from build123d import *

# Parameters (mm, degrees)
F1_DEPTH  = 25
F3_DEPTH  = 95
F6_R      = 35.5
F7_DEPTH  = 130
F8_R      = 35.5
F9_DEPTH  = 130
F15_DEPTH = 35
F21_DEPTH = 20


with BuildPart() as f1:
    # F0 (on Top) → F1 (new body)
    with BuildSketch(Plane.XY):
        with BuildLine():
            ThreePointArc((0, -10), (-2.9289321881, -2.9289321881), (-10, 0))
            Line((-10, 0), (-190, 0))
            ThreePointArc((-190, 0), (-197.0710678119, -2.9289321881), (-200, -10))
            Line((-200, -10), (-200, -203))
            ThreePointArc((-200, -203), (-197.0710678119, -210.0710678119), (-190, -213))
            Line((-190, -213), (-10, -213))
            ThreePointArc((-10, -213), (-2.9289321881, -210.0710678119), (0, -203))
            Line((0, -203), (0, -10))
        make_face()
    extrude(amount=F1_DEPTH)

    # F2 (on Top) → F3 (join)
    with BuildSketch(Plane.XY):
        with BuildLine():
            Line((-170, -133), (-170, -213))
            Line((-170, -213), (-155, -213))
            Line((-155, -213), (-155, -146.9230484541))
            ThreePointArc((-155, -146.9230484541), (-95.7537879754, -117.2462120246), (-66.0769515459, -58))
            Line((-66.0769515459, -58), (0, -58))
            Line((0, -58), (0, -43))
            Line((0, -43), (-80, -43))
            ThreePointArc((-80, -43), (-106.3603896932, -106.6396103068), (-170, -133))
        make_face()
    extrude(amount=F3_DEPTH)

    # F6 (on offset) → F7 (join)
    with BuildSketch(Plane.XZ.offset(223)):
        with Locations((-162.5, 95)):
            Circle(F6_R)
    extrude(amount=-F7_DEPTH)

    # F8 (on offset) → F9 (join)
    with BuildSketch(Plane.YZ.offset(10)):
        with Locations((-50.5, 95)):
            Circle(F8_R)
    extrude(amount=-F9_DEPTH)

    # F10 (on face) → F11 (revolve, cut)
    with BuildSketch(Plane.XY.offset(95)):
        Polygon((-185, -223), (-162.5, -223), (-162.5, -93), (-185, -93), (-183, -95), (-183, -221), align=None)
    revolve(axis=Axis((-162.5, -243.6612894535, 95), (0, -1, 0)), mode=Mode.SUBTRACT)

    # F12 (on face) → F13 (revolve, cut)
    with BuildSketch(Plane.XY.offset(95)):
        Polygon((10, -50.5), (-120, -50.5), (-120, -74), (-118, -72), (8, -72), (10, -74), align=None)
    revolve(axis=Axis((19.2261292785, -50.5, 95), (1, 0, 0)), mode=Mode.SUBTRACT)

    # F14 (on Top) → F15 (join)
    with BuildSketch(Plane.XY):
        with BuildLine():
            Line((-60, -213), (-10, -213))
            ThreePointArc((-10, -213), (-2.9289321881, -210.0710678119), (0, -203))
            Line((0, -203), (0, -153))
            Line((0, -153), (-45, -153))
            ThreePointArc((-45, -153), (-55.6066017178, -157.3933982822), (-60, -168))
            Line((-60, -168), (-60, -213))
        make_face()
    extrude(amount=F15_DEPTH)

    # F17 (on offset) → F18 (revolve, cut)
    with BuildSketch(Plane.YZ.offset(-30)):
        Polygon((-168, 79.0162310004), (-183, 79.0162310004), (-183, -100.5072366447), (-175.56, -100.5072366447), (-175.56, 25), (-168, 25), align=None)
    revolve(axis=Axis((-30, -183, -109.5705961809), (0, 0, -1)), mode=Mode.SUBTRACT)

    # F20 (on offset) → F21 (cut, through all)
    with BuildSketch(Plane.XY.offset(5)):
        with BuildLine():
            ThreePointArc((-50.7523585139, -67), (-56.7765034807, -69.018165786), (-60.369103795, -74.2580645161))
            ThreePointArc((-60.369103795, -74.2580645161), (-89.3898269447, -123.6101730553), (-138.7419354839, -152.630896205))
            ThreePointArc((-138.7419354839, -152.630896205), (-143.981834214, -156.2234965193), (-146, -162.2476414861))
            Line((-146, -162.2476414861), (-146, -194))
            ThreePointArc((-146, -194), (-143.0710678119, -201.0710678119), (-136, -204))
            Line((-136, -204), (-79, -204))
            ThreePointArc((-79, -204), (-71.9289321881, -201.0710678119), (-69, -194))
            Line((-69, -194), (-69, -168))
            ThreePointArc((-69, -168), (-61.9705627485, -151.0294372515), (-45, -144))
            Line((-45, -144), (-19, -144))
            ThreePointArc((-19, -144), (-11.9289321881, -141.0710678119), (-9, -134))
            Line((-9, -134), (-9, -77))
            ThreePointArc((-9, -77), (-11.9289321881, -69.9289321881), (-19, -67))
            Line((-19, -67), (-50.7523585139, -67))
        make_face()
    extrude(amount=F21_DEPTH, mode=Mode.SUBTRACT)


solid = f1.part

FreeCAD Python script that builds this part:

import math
import FreeCAD as App
import Part
import Sketcher
from FreeCAD import Vector
Q = App.Units.Quantity

doc = App.newDocument("Part")
params = doc.addObject("Spreadsheet::Sheet", "Params")
for row, (alias, value) in enumerate([
    ("sketch1_radius", "10 mm"),
    ("sketch1_width", "180 mm"),
    ("sketch1_height", "193 mm"),
    ("pad1_length", "25 mm"),
    ("sketch2_radius", "105 mm"),
    ("sketch2_radius2", "90 mm"),
    ("sketch2_width", "15 mm"),
    ("sketch2_width2", "80 mm"),
    ("pad2_length", "95 mm"),
    ("sketch3_diameter", "71 mm"),
    ("pad3_length", "130 mm"),
    ("sketch4_diameter", "71 mm"),
    ("pad4_length", "130 mm"),
    ("sketch5_height", "130 mm"),
    ("sketch5_height2", "126 mm"),
    ("sketch5_width", "22.5 mm"),
    ("groove_angle", "360 deg"),
    ("sketch6_width", "130 mm"),
    ("sketch6_width2", "126 mm"),
    ("sketch6_height", "23.5 mm"),
    ("groove2_angle", "360 deg"),
    ("sketch7_radius", "10 mm"),
    ("sketch7_radius2", "15 mm"),
    ("sketch7_width", "50 mm"),
    ("pad5_length", "35 mm"),
    ("sketch8_width", "15 mm"),
    ("sketch8_width2", "7.44 mm"),
    ("groove3_angle", "360 deg"),
    ("sketch9_radius", "10 mm"),
    ("sketch9_radius2", "114 mm"),
    ("sketch9_radius3", "24 mm"),
    ("sketch9_width", "57 mm"),
    ("sketch9_width2", "26 mm"),
    ("pocket1_length", "20 mm"),
], start=1):
    params.set(f"A{row}", alias)
    params.set(f"B{row}", "=" + value)
    params.setAlias(f"B{row}", alias)

body = doc.addObject("PartDesign::Body", "Body")

# Sketch on XY plane
sketch1 = body.newObject("Sketcher::SketchObject", "Sketch")
sketch1.AttachmentSupport = (doc.getObject("XY_Plane"), [""])
sketch1.MapMode = "FlatFace"
sketch1.addGeometry([
    Part.ArcOfCircle(Part.Circle(Vector(-10, -10, 0), Vector(0, 0, 1), 10), math.radians(0), math.radians(90)),  # 0
    Part.LineSegment(Vector(-10, 0, 0), Vector(-190, 0, 0)),  # 1
    Part.ArcOfCircle(Part.Circle(Vector(-190, -10, 0), Vector(0, 0, 1), 10), math.radians(90), math.radians(180)),  # 2
    Part.LineSegment(Vector(-200, -10, 0), Vector(-200, -203, 0)),  # 3
    Part.ArcOfCircle(Part.Circle(Vector(-190, -203, 0), Vector(0, 0, 1), 10), math.radians(180), math.radians(270)),  # 4
    Part.LineSegment(Vector(-190, -213, 0), Vector(-10, -213, 0)),  # 5
    Part.ArcOfCircle(Part.Circle(Vector(-10, -203, 0), Vector(0, 0, 1), 10), math.radians(-90), math.radians(0)),  # 6
    Part.LineSegment(Vector(0, -203, 0), Vector(0, -10, 0)),  # 7
], False)
sketch1.addConstraint([
    Sketcher.Constraint("Tangent", 0, 2, 1, 1),
    Sketcher.Constraint("Tangent", 1, 2, 2, 1),
    Sketcher.Constraint("Tangent", 2, 2, 3, 1),
    Sketcher.Constraint("Tangent", 3, 2, 4, 1),
    Sketcher.Constraint("Tangent", 4, 2, 5, 1),
    Sketcher.Constraint("Tangent", 5, 2, 6, 1),
    Sketcher.Constraint("Tangent", 6, 2, 7, 1),
    Sketcher.Constraint("Tangent", 7, 2, 0, 1),
    Sketcher.Constraint("Horizontal", 1),
    Sketcher.Constraint("Vertical", 3),
    Sketcher.Constraint("Horizontal", 5),
    Sketcher.Constraint("Vertical", 7),
    Sketcher.Constraint("Equal", 0, 2),
    Sketcher.Constraint("Equal", 2, 4),
    Sketcher.Constraint("Equal", 4, 6),
    Sketcher.Constraint("PointOnObject", 0, 2, -1),
    Sketcher.Constraint("PointOnObject", 6, 2, -2),
    Sketcher.Constraint("Radius", 0, Q("10 mm")),
    Sketcher.Constraint("DistanceX", 1, 2, 1, 1, Q("180 mm")),
    Sketcher.Constraint("DistanceY", 3, 2, 3, 1, Q("193 mm")),
])
sketch1.setExpression("Constraints[17]", "Params.sketch1_radius")
sketch1.setExpression("Constraints[18]", "Params.sketch1_width")
sketch1.setExpression("Constraints[19]", "Params.sketch1_height")
pad1 = body.newObject("PartDesign::Pad", "Pad")
pad1.Profile = sketch1
pad1.setExpression("Length", "Params.pad1_length")

# Sketch on XY plane
sketch2 = body.newObject("Sketcher::SketchObject", "Sketch001")
sketch2.AttachmentSupport = (doc.getObject("XY_Plane"), [""])
sketch2.MapMode = "FlatFace"
sketch2.addGeometry([
    Part.LineSegment(Vector(-170, -133, 0), Vector(-170, -213, 0)),  # 0
    Part.LineSegment(Vector(-170, -213, 0), Vector(-155, -213, 0)),  # 1
    Part.LineSegment(Vector(-155, -213, 0), Vector(-155, -147, 0)),  # 2
    Part.ArcOfCircle(Part.Circle(Vector(-170, -43, 0), Vector(0, 0, 1), 105), math.radians(-82), math.radians(-8)),  # 3
    Part.LineSegment(Vector(-66, -58, 0), Vector(0, -58, 0)),  # 4
    Part.LineSegment(Vector(0, -58, 0), Vector(0, -43, 0)),  # 5
    Part.LineSegment(Vector(0, -43, 0), Vector(-80, -43, 0)),  # 6
    Part.ArcOfCircle(Part.Circle(Vector(-170, -43, 0), Vector(0, 0, 1), 90), math.radians(-90), math.radians(0)),  # 7
], False)
sketch2.addConstraint([
    Sketcher.Constraint("Coincident", 0, 2, 1, 1),
    Sketcher.Constraint("Coincident", 1, 2, 2, 1),
    Sketcher.Constraint("Coincident", 2, 2, 3, 1),
    Sketcher.Constraint("Coincident", 3, 2, 4, 1),
    Sketcher.Constraint("Coincident", 4, 2, 5, 1),
    Sketcher.Constraint("Coincident", 5, 2, 6, 1),
    Sketcher.Constraint("Coincident", 6, 2, 7, 2),
    Sketcher.Constraint("Coincident", 7, 1, 0, 1),
    Sketcher.Constraint("Vertical", 0),
    Sketcher.Constraint("Horizontal", 1),
    Sketcher.Constraint("Vertical", 2),
    Sketcher.Constraint("Horizontal", 4),
    Sketcher.Constraint("Vertical", 5),
    Sketcher.Constraint("Horizontal", 6),
    Sketcher.Constraint("Coincident", 7, 3, 3, 3),
    Sketcher.Constraint("PointOnObject", 4, 2, -2),
    Sketcher.Constraint("Horizontal", 7, 3, 5, 2),
    Sketcher.Constraint("Vertical", 7, 3, 0, 2),
    Sketcher.Constraint("Equal", 6, 0),
    Sketcher.Constraint("Equal", 4, 2),
    Sketcher.Constraint("Radius", 3, Q("105 mm")),
    Sketcher.Constraint("Radius", 7, Q("90 mm")),
    Sketcher.Constraint("DistanceX", 1, 1, 1, 2, Q("15 mm")),
    Sketcher.Constraint("DistanceX", 6, 2, 6, 1, Q("80 mm")),
    Sketcher.Constraint("DistanceY", 3, 3, -1, 1, Q("43 mm")),
])
sketch2.setExpression("Constraints[20]", "Params.sketch2_radius")
sketch2.setExpression("Constraints[21]", "Params.sketch2_radius2")
sketch2.setExpression("Constraints[22]", "Params.sketch2_width")
sketch2.setExpression("Constraints[23]", "Params.sketch2_width2")
pad2 = body.newObject("PartDesign::Pad", "Pad001")
pad2.Profile = sketch2
pad2.setExpression("Length", "Params.pad2_length")

# Sketch on XZ plane
sketch3 = body.newObject("Sketcher::SketchObject", "Sketch002")
sketch3.AttachmentSupport = (doc.getObject("XZ_Plane"), [""])
sketch3.MapMode = "FlatFace"
sketch3.AttachmentOffset = App.Placement(Vector(0, 0, 223), App.Rotation())
sketch3.addGeometry(Part.Circle(Vector(-162, 95, 0), Vector(0, 0, 1), 36), False)
sketch3.addConstraint([
    Sketcher.Constraint("Diameter", 0, Q("71 mm")),
    Sketcher.Constraint("DistanceY", -1, 1, 0, 3, Q("95 mm")),
    Sketcher.Constraint("DistanceX", 0, 3, -1, 1, Q("162.5 mm")),
])
sketch3.setExpression("Constraints[0]", "Params.sketch3_diameter")
pad3 = body.newObject("PartDesign::Pad", "Pad002")
pad3.Profile = sketch3
pad3.setExpression("Length", "Params.pad3_length")
pad3.Reversed = True

# Sketch on YZ plane
sketch4 = body.newObject("Sketcher::SketchObject", "Sketch003")
sketch4.AttachmentSupport = (doc.getObject("YZ_Plane"), [""])
sketch4.MapMode = "FlatFace"
sketch4.AttachmentOffset = App.Placement(Vector(0, 0, 10), App.Rotation())
sketch4.addGeometry(Part.Circle(Vector(-50, 95, 0), Vector(0, 0, 1), 36), False)
sketch4.addConstraint([
    Sketcher.Constraint("Diameter", 0, Q("71 mm")),
    Sketcher.Constraint("DistanceY", -1, 1, 0, 3, Q("95 mm")),
    Sketcher.Constraint("DistanceX", 0, 3, -1, 1, Q("50.5 mm")),
])
sketch4.setExpression("Constraints[0]", "Params.sketch4_diameter")
pad4 = body.newObject("PartDesign::Pad", "Pad003")
pad4.Profile = sketch4
pad4.setExpression("Length", "Params.pad4_length")
pad4.Reversed = True

# Sketch on XY plane
sketch5 = body.newObject("Sketcher::SketchObject", "Sketch004")
sketch5.AttachmentSupport = (doc.getObject("XY_Plane"), [""])
sketch5.MapMode = "FlatFace"
sketch5.AttachmentOffset = App.Placement(Vector(0, 0, 95), App.Rotation())
sketch5.addGeometry([
    Part.LineSegment(Vector(-185, -223, 0), Vector(-162.5, -223, 0)),  # 0
    Part.LineSegment(Vector(-162.5, -223, 0), Vector(-162.5, -93, 0)),  # 1
    Part.LineSegment(Vector(-162.5, -93, 0), Vector(-185, -93, 0)),  # 2
    Part.LineSegment(Vector(-185, -93, 0), Vector(-183, -95, 0)),  # 3
    Part.LineSegment(Vector(-183, -95, 0), Vector(-183, -221, 0)),  # 4
    Part.LineSegment(Vector(-183, -221, 0), Vector(-185, -223, 0)),  # 5
], False)
sketch5.addGeometry(Part.LineSegment(Vector(-162.5, -93, 0), Vector(-162.5, -223, 0)), True)  # axis
sketch5.addConstraint([
    Sketcher.Constraint("Coincident", 0, 2, 1, 1),
    Sketcher.Constraint("Coincident", 1, 2, 2, 1),
    Sketcher.Constraint("Coincident", 2, 2, 3, 1),
    Sketcher.Constraint("Coincident", 3, 2, 4, 1),
    Sketcher.Constraint("Coincident", 4, 2, 5, 1),
    Sketcher.Constraint("Coincident", 5, 2, 0, 1),
    Sketcher.Constraint("Horizontal", 0),
    Sketcher.Constraint("Vertical", 1),
    Sketcher.Constraint("Horizontal", 2),
    Sketcher.Constraint("Vertical", 4),
    Sketcher.Constraint("Vertical", 6),
    Sketcher.Constraint("Coincident", 6, 1, 1, 2),
    Sketcher.Constraint("Perpendicular", 3, 5),
    Sketcher.Constraint("Horizontal", 5, 2, 6, 2),
    Sketcher.Constraint("Vertical", 2, 2, 5, 2),
    Sketcher.Constraint("Equal", 3, 5),
    Sketcher.Constraint("DistanceY", 1, 1, 1, 2, Q("130 mm")),
    Sketcher.Constraint("DistanceY", 4, 2, 4, 1, Q("126 mm")),
    Sketcher.Constraint("DistanceX", 0, 1, 0, 2, Q("22.5 mm")),
    Sketcher.Constraint("DistanceY", 0, 2, -1, 1, Q("223 mm")),
    Sketcher.Constraint("DistanceX", 2, 2, -1, 1, Q("185 mm")),
])
sketch5.setExpression("Constraints[16]", "Params.sketch5_height")
sketch5.setExpression("Constraints[17]", "Params.sketch5_height2")
sketch5.setExpression("Constraints[18]", "Params.sketch5_width")
groove = body.newObject("PartDesign::Groove", "Groove")
groove.Profile = sketch5
groove.ReferenceAxis = (sketch5, ["Axis0"])
groove.setExpression("Angle", "Params.groove_angle")

# Sketch on XY plane
sketch6 = body.newObject("Sketcher::SketchObject", "Sketch005")
sketch6.AttachmentSupport = (doc.getObject("XY_Plane"), [""])
sketch6.MapMode = "FlatFace"
sketch6.AttachmentOffset = App.Placement(Vector(0, 0, 95), App.Rotation())
sketch6.addGeometry([
    Part.LineSegment(Vector(10, -50.5, 0), Vector(-120, -50.5, 0)),  # 0
    Part.LineSegment(Vector(-120, -50.5, 0), Vector(-120, -74, 0)),  # 1
    Part.LineSegment(Vector(-120, -74, 0), Vector(-118, -72, 0)),  # 2
    Part.LineSegment(Vector(-118, -72, 0), Vector(8, -72, 0)),  # 3
    Part.LineSegment(Vector(8, -72, 0), Vector(10, -74, 0)),  # 4
    Part.LineSegment(Vector(10, -74, 0), Vector(10, -50.5, 0)),  # 5
], False)
sketch6.addGeometry(Part.LineSegment(Vector(-120, -50.5, 0), Vector(10, -50.5, 0)), True)  # axis
sketch6.addConstraint([
    Sketcher.Constraint("Coincident", 0, 2, 1, 1),
    Sketcher.Constraint("Coincident", 1, 2, 2, 1),
    Sketcher.Constraint("Coincident", 2, 2, 3, 1),
    Sketcher.Constraint("Coincident", 3, 2, 4, 1),
    Sketcher.Constraint("Coincident", 4, 2, 5, 1),
    Sketcher.Constraint("Coincident", 5, 2, 0, 1),
    Sketcher.Constraint("Horizontal", 0),
    Sketcher.Constraint("Vertical", 1),
    Sketcher.Constraint("Horizontal", 3),
    Sketcher.Constraint("Vertical", 5),
    Sketcher.Constraint("Horizontal", 6),
    Sketcher.Constraint("Coincident", 6, 1, 0, 2),
    Sketcher.Constraint("Perpendicular", 2, 4),
    Sketcher.Constraint("Horizontal", 1, 2, 4, 2),
    Sketcher.Constraint("Vertical", 4, 2, 6, 2),
    Sketcher.Constraint("Equal", 2, 4),
    Sketcher.Constraint("DistanceX", 0, 2, 0, 1, Q("130 mm")),
    Sketcher.Constraint("DistanceX", 3, 1, 3, 2, Q("126 mm")),
    Sketcher.Constraint("DistanceY", 1, 2, 1, 1, Q("23.5 mm")),
    Sketcher.Constraint("DistanceX", 0, 2, -1, 1, Q("120 mm")),
    Sketcher.Constraint("DistanceY", 1, 2, -1, 1, Q("74 mm")),
])
sketch6.setExpression("Constraints[16]", "Params.sketch6_width")
sketch6.setExpression("Constraints[17]", "Params.sketch6_width2")
sketch6.setExpression("Constraints[18]", "Params.sketch6_height")
groove2 = body.newObject("PartDesign::Groove", "Groove001")
groove2.Profile = sketch6
groove2.ReferenceAxis = (sketch6, ["Axis0"])
groove2.setExpression("Angle", "Params.groove2_angle")

# Sketch on XY plane
sketch7 = body.newObject("Sketcher::SketchObject", "Sketch006")
sketch7.AttachmentSupport = (doc.getObject("XY_Plane"), [""])
sketch7.MapMode = "FlatFace"
sketch7.addGeometry([
    Part.LineSegment(Vector(-60, -213, 0), Vector(-10, -213, 0)),  # 0
    Part.ArcOfCircle(Part.Circle(Vector(-10, -203, 0), Vector(0, 0, 1), 10), math.radians(-90), math.radians(0)),  # 1
    Part.LineSegment(Vector(0, -203, 0), Vector(0, -153, 0)),  # 2
    Part.LineSegment(Vector(0, -153, 0), Vector(-45, -153, 0)),  # 3
    Part.ArcOfCircle(Part.Circle(Vector(-45, -168, 0), Vector(0, 0, 1), 15), math.radians(90), math.radians(180)),  # 4
    Part.LineSegment(Vector(-60, -168, 0), Vector(-60, -213, 0)),  # 5
], False)
sketch7.addConstraint([
    Sketcher.Constraint("Tangent", 0, 2, 1, 1),
    Sketcher.Constraint("Tangent", 1, 2, 2, 1),
    Sketcher.Constraint("Coincident", 2, 2, 3, 1),
    Sketcher.Constraint("Tangent", 3, 2, 4, 1),
    Sketcher.Constraint("Tangent", 4, 2, 5, 1),
    Sketcher.Constraint("Coincident", 5, 2, 0, 1),
    Sketcher.Constraint("Horizontal", 0),
    Sketcher.Constraint("Vertical", 2),
    Sketcher.Constraint("Horizontal", 3),
    Sketcher.Constraint("Vertical", 5),
    Sketcher.Constraint("PointOnObject", 1, 2, -2),
    Sketcher.Constraint("Equal", 0, 2),
    Sketcher.Constraint("Radius", 1, Q("10 mm")),
    Sketcher.Constraint("Radius", 4, Q("15 mm")),
    Sketcher.Constraint("DistanceX", 0, 1, 0, 2, Q("50 mm")),
    Sketcher.Constraint("DistanceY", 1, 3, -1, 1, Q("203 mm")),
])
sketch7.setExpression("Constraints[12]", "Params.sketch7_radius")
sketch7.setExpression("Constraints[13]", "Params.sketch7_radius2")
sketch7.setExpression("Constraints[14]", "Params.sketch7_width")
pad5 = body.newObject("PartDesign::Pad", "Pad004")
pad5.Profile = sketch7
pad5.setExpression("Length", "Params.pad5_length")

# Sketch on YZ plane
sketch8 = body.newObject("Sketcher::SketchObject", "Sketch007")
sketch8.AttachmentSupport = (doc.getObject("YZ_Plane"), [""])
sketch8.MapMode = "FlatFace"
sketch8.AttachmentOffset = App.Placement(Vector(0, 0, -30), App.Rotation())
sketch8.addGeometry([
    Part.LineSegment(Vector(-168, 79, 0), Vector(-183, 79, 0)),  # 0
    Part.LineSegment(Vector(-183, 79, 0), Vector(-183, -101, 0)),  # 1
    Part.LineSegment(Vector(-183, -101, 0), Vector(-176, -101, 0)),  # 2
    Part.LineSegment(Vector(-176, -101, 0), Vector(-176, 25, 0)),  # 3
    Part.LineSegment(Vector(-176, 25, 0), Vector(-168, 25, 0)),  # 4
    Part.LineSegment(Vector(-168, 25, 0), Vector(-168, 79, 0)),  # 5
], False)
sketch8.addGeometry(Part.LineSegment(Vector(-183, 79, 0), Vector(-183, -101, 0)), True)  # axis
sketch8.addConstraint([
    Sketcher.Constraint("Coincident", 0, 2, 1, 1),
    Sketcher.Constraint("Coincident", 1, 2, 2, 1),
    Sketcher.Constraint("Coincident", 2, 2, 3, 1),
    Sketcher.Constraint("Coincident", 3, 2, 4, 1),
    Sketcher.Constraint("Coincident", 4, 2, 5, 1),
    Sketcher.Constraint("Coincident", 5, 2, 0, 1),
    Sketcher.Constraint("Horizontal", 0),
    Sketcher.Constraint("Vertical", 1),
    Sketcher.Constraint("Horizontal", 2),
    Sketcher.Constraint("Vertical", 3),
    Sketcher.Constraint("Horizontal", 4),
    Sketcher.Constraint("Vertical", 5),
    Sketcher.Constraint("Vertical", 6),
    Sketcher.Constraint("Coincident", 6, 1, 0, 2),
    Sketcher.Constraint("Horizontal", 2, 2, 6, 2),
    Sketcher.Constraint("DistanceX", 0, 2, 0, 1, Q("15 mm")),
    Sketcher.Constraint("DistanceX", 0, 2, -1, 1, Q("183 mm")),
    Sketcher.Constraint("DistanceY", -1, 1, 3, 2, Q("25 mm")),
    Sketcher.Constraint("DistanceX", 2, 1, 2, 2, Q("7.44 mm")),
    Sketcher.Constraint("DistanceY", 5, 1, 5, 2, Q("54.016231 mm")),
    Sketcher.Constraint("DistanceY", 1, 2, 1, 1, Q("179.523468 mm")),
])
sketch8.setExpression("Constraints[15]", "Params.sketch8_width")
sketch8.setExpression("Constraints[18]", "Params.sketch8_width2")
groove3 = body.newObject("PartDesign::Groove", "Groove002")
groove3.Profile = sketch8
groove3.ReferenceAxis = (sketch8, ["Axis0"])
groove3.setExpression("Angle", "Params.groove3_angle")

# Sketch on XY plane
sketch9 = body.newObject("Sketcher::SketchObject", "Sketch008")
sketch9.AttachmentSupport = (doc.getObject("XY_Plane"), [""])
sketch9.MapMode = "FlatFace"
sketch9.AttachmentOffset = App.Placement(Vector(0, 0, 5), App.Rotation())
sketch9.addGeometry([
    Part.ArcOfCircle(Part.Circle(Vector(-51, -77, 0), Vector(0, 0, 1), 10), math.radians(90), math.radians(164)),  # 0
    Part.ArcOfCircle(Part.Circle(Vector(-170, -43, 0), Vector(0, 0, 1), 114), math.radians(-74), math.radians(-16)),  # 1
    Part.ArcOfCircle(Part.Circle(Vector(-136, -162, 0), Vector(0, 0, 1), 10), math.radians(106), math.radians(180)),  # 2
    Part.LineSegment(Vector(-146, -162, 0), Vector(-146, -194, 0)),  # 3
    Part.ArcOfCircle(Part.Circle(Vector(-136, -194, 0), Vector(0, 0, 1), 10), math.radians(180), math.radians(270)),  # 4
    Part.LineSegment(Vector(-136, -204, 0), Vector(-79, -204, 0)),  # 5
    Part.ArcOfCircle(Part.Circle(Vector(-79, -194, 0), Vector(0, 0, 1), 10), math.radians(-90), math.radians(0)),  # 6
    Part.LineSegment(Vector(-69, -194, 0), Vector(-69, -168, 0)),  # 7
    Part.ArcOfCircle(Part.Circle(Vector(-45, -168, 0), Vector(0, 0, 1), 24), math.radians(90), math.radians(180)),  # 8
    Part.LineSegment(Vector(-45, -144, 0), Vector(-19, -144, 0)),  # 9
    Part.ArcOfCircle(Part.Circle(Vector(-19, -134, 0), Vector(0, 0, 1), 10), math.radians(-90), math.radians(0)),  # 10
    Part.LineSegment(Vector(-9, -134, 0), Vector(-9, -77, 0)),  # 11
    Part.ArcOfCircle(Part.Circle(Vector(-19, -77, 0), Vector(0, 0, 1), 10), math.radians(0), math.radians(90)),  # 12
    Part.LineSegment(Vector(-19, -67, 0), Vector(-51, -67, 0)),  # 13
], False)
sketch9.addConstraint([
    Sketcher.Constraint("Tangent", 0, 2, 1, 2),
    Sketcher.Constraint("Tangent", 1, 1, 2, 1),
    Sketcher.Constraint("Tangent", 2, 2, 3, 1),
    Sketcher.Constraint("Tangent", 3, 2, 4, 1),
    Sketcher.Constraint("Tangent", 4, 2, 5, 1),
    Sketcher.Constraint("Tangent", 5, 2, 6, 1),
    Sketcher.Constraint("Tangent", 6, 2, 7, 1),
    Sketcher.Constraint("Tangent", 7, 2, 8, 2),
    Sketcher.Constraint("Tangent", 8, 1, 9, 1),
    Sketcher.Constraint("Tangent", 9, 2, 10, 1),
    Sketcher.Constraint("Tangent", 10, 2, 11, 1),
    Sketcher.Constraint("Tangent", 11, 2, 12, 1),
    Sketcher.Constraint("Tangent", 12, 2, 13, 1),
    Sketcher.Constraint("Tangent", 13, 2, 0, 1),
    Sketcher.Constraint("Vertical", 3),
    Sketcher.Constraint("Horizontal", 5),
    Sketcher.Constraint("Vertical", 7),
    Sketcher.Constraint("Horizontal", 9),
    Sketcher.Constraint("Vertical", 11),
    Sketcher.Constraint("Horizontal", 13),
    Sketcher.Constraint("Equal", 0, 2),
    Sketcher.Constraint("Equal", 2, 4),
    Sketcher.Constraint("Equal", 4, 6),
    Sketcher.Constraint("Equal", 6, 10),
    Sketcher.Constraint("Equal", 10, 12),
    Sketcher.Constraint("Equal", 13, 3),
    Sketcher.Constraint("Equal", 9, 7),
    Sketcher.Constraint("Equal", 5, 11),
    Sketcher.Constraint("Radius", 0, Q("10 mm")),
    Sketcher.Constraint("Radius", 1, Q("114 mm")),
    Sketcher.Constraint("Radius", 8, Q("24 mm")),
    Sketcher.Constraint("DistanceX", 5, 1, 5, 2, Q("57 mm")),
    Sketcher.Constraint("DistanceX", 9, 1, 9, 2, Q("26 mm")),
    Sketcher.Constraint("DistanceY", 0, 3, -1, 1, Q("77 mm")),
    Sketcher.Constraint("DistanceX", 1, 3, -1, 1, Q("170 mm")),
    Sketcher.Constraint("DistanceY", 1, 3, -1, 1, Q("43 mm")),
])
sketch9.setExpression("Constraints[28]", "Params.sketch9_radius")
sketch9.setExpression("Constraints[29]", "Params.sketch9_radius2")
sketch9.setExpression("Constraints[30]", "Params.sketch9_radius3")
sketch9.setExpression("Constraints[31]", "Params.sketch9_width")
sketch9.setExpression("Constraints[32]", "Params.sketch9_width2")
pocket1 = body.newObject("PartDesign::Pocket", "Pocket")
pocket1.Profile = sketch9
pocket1.setExpression("Length", "Params.pocket1_length")
pocket1.Reversed = True

doc.recompute()
